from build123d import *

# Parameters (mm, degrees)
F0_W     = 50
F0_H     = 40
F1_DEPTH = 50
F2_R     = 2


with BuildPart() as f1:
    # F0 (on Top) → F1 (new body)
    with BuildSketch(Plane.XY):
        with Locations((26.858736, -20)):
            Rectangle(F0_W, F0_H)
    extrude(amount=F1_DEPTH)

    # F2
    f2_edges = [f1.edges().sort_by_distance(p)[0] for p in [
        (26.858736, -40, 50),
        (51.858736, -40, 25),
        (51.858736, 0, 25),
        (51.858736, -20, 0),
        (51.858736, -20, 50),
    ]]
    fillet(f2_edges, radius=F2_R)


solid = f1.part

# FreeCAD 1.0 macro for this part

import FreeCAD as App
import Part
import Sketcher
from FreeCAD import Vector
Q = App.Units.Quantity


def edges_at(feature, points):
    """Names of the edges that pass closest to the given points."""
    edges = feature.Shape.Edges
    near = lambda p: min(range(len(edges)), key=lambda i: edges[i].distToShape(Part.Vertex(*p))[0])
    return sorted({f"Edge{near(p) + 1}" for p in points})

doc = App.newDocument("Part")
body = doc.addObject("PartDesign::Body", "Body")

# Sketch on XY plane
sketch1 = body.newObject("Sketcher::SketchObject", "Sketch")
sketch1.AttachmentSupport = (doc.getObject("XY_Plane"), [""])
sketch1.MapMode = "FlatFace"
sketch1.addGeometry(Part.LineSegment(Vector(1.858736, 0, 0), Vector(1.858736, -40, 0)), False)
sketch1.addGeometry(Part.LineSegment(Vector(1.858736, -40, 0), Vector(51.858736, -40, 0)), False)
sketch1.addGeometry(Part.LineSegment(Vector(51.858736, -40, 0), Vector(51.858736, 0, 0)), False)
sketch1.addGeometry(Part.LineSegment(Vector(51.858736, 0, 0), Vector(1.858736, 0, 0)), False)
sketch1.addConstraint(Sketcher.Constraint("Coincident", 0, 2, 1, 1))
sketch1.addConstraint(Sketcher.Constraint("Coincident", 1, 2, 2, 1))
sketch1.addConstraint(Sketcher.Constraint("Coincident", 2, 2, 3, 1))
sketch1.addConstraint(Sketcher.Constraint("Coincident", 3, 2, 0, 1))
sketch1.addConstraint(Sketcher.Constraint("Vertical", 0))
sketch1.addConstraint(Sketcher.Constraint("Horizontal", 1))
sketch1.addConstraint(Sketcher.Constraint("Vertical", 2))
sketch1.addConstraint(Sketcher.Constraint("Horizontal", 3))
sketch1.addConstraint(Sketcher.Constraint("PointOnObject", 2, 2, -1))
sketch1.addConstraint(Sketcher.Constraint("DistanceX", 1, 1, 1, 2, Q("50 mm")))
sketch1.addConstraint(Sketcher.Constraint("DistanceY", 0, 2, 0, 1, Q("40 mm")))
sketch1.addConstraint(Sketcher.Constraint("DistanceX", -1, 1, 0, 2, Q("1.858736 mm")))
pad1 = body.newObject("PartDesign::Pad", "Pad")
pad1.Profile = sketch1
pad1.Length = 50
doc.recompute()

fillet = body.newObject("PartDesign::Fillet", "Fillet")
fillet.Base = (pad1, edges_at(pad1, [
    (26.859, -40, 50),
    (51.859, -40, 25),
    (51.859, 0, 25),
    (51.859, -20, 0),
    (51.859, -20, 50),
]))
fillet.Radius = 2

doc.recompute()
